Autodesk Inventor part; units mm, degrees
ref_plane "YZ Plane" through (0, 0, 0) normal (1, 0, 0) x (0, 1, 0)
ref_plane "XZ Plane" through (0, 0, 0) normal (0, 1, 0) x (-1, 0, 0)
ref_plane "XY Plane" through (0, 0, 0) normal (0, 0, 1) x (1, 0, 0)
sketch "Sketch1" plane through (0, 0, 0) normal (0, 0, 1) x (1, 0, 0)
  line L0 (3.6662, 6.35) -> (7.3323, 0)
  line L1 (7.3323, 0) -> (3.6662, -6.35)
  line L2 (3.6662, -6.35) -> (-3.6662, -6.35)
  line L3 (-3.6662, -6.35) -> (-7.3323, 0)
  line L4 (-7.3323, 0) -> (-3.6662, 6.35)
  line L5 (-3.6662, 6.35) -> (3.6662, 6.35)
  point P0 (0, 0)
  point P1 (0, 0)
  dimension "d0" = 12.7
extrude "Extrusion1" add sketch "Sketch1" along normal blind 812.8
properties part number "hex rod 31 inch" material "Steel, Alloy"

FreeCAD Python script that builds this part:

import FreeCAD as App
import Part
import Sketcher
from FreeCAD import Vector
Q = App.Units.Quantity

doc = App.newDocument("Part")
body = doc.addObject("PartDesign::Body", "Body")

sketch1 = body.newObject("Sketcher::SketchObject", "Sketch")
sketch1.AttachmentSupport = (doc.getObject("XY_Plane"), [""])
sketch1.MapMode = "FlatFace"
sketch1.addGeometry([
    Part.LineSegment(Vector(7, 0, 0), Vector(4, 6, 0)),
    Part.LineSegment(Vector(4, 6, 0), Vector(-4, 6, 0)),
    Part.LineSegment(Vector(-4, 6, 0), Vector(-7, 0, 0)),
    Part.LineSegment(Vector(-7, 0, 0), Vector(-4, -6, 0)),
    Part.LineSegment(Vector(-4, -6, 0), Vector(4, -6, 0)),
    Part.LineSegment(Vector(4, -6, 0), Vector(7, 0, 0)),
], False)
sketch1.addConstraint([
    Sketcher.Constraint("Coincident", 0, 2, 1, 1),
    Sketcher.Constraint("Coincident", 1, 2, 2, 1),
    Sketcher.Constraint("Coincident", 2, 2, 3, 1),
    Sketcher.Constraint("Coincident", 3, 2, 4, 1),
    Sketcher.Constraint("Coincident", 4, 2, 5, 1),
    Sketcher.Constraint("Coincident", 5, 2, 0, 1),
    Sketcher.Constraint("Horizontal", 1),
    Sketcher.Constraint("Horizontal", 4),
    Sketcher.Constraint("Symmetric", 0, 2, 3, 2, -1, 1),
    Sketcher.Constraint("Symmetric", 2, 2, 5, 2, -1, 1),
    Sketcher.Constraint("PointOnObject", 2, 2, -1),
    Sketcher.Constraint("Parallel", 2, 5),
    Sketcher.Constraint("Vertical", 1, 2, 3, 2),
    Sketcher.Constraint("DistanceY", 3, 2, 1, 2, Q("0.5 in")),
    Sketcher.Constraint("Angle", 0, Q("119.9995 deg")),
    Sketcher.Constraint("DistanceX", 2, 2, 0, 2, Q("0.433 in")),
])
pad1 = body.newObject("PartDesign::Pad", "Pad")
pad1.Profile = sketch1
pad1.Length = Q("32 in")

doc.recompute()
